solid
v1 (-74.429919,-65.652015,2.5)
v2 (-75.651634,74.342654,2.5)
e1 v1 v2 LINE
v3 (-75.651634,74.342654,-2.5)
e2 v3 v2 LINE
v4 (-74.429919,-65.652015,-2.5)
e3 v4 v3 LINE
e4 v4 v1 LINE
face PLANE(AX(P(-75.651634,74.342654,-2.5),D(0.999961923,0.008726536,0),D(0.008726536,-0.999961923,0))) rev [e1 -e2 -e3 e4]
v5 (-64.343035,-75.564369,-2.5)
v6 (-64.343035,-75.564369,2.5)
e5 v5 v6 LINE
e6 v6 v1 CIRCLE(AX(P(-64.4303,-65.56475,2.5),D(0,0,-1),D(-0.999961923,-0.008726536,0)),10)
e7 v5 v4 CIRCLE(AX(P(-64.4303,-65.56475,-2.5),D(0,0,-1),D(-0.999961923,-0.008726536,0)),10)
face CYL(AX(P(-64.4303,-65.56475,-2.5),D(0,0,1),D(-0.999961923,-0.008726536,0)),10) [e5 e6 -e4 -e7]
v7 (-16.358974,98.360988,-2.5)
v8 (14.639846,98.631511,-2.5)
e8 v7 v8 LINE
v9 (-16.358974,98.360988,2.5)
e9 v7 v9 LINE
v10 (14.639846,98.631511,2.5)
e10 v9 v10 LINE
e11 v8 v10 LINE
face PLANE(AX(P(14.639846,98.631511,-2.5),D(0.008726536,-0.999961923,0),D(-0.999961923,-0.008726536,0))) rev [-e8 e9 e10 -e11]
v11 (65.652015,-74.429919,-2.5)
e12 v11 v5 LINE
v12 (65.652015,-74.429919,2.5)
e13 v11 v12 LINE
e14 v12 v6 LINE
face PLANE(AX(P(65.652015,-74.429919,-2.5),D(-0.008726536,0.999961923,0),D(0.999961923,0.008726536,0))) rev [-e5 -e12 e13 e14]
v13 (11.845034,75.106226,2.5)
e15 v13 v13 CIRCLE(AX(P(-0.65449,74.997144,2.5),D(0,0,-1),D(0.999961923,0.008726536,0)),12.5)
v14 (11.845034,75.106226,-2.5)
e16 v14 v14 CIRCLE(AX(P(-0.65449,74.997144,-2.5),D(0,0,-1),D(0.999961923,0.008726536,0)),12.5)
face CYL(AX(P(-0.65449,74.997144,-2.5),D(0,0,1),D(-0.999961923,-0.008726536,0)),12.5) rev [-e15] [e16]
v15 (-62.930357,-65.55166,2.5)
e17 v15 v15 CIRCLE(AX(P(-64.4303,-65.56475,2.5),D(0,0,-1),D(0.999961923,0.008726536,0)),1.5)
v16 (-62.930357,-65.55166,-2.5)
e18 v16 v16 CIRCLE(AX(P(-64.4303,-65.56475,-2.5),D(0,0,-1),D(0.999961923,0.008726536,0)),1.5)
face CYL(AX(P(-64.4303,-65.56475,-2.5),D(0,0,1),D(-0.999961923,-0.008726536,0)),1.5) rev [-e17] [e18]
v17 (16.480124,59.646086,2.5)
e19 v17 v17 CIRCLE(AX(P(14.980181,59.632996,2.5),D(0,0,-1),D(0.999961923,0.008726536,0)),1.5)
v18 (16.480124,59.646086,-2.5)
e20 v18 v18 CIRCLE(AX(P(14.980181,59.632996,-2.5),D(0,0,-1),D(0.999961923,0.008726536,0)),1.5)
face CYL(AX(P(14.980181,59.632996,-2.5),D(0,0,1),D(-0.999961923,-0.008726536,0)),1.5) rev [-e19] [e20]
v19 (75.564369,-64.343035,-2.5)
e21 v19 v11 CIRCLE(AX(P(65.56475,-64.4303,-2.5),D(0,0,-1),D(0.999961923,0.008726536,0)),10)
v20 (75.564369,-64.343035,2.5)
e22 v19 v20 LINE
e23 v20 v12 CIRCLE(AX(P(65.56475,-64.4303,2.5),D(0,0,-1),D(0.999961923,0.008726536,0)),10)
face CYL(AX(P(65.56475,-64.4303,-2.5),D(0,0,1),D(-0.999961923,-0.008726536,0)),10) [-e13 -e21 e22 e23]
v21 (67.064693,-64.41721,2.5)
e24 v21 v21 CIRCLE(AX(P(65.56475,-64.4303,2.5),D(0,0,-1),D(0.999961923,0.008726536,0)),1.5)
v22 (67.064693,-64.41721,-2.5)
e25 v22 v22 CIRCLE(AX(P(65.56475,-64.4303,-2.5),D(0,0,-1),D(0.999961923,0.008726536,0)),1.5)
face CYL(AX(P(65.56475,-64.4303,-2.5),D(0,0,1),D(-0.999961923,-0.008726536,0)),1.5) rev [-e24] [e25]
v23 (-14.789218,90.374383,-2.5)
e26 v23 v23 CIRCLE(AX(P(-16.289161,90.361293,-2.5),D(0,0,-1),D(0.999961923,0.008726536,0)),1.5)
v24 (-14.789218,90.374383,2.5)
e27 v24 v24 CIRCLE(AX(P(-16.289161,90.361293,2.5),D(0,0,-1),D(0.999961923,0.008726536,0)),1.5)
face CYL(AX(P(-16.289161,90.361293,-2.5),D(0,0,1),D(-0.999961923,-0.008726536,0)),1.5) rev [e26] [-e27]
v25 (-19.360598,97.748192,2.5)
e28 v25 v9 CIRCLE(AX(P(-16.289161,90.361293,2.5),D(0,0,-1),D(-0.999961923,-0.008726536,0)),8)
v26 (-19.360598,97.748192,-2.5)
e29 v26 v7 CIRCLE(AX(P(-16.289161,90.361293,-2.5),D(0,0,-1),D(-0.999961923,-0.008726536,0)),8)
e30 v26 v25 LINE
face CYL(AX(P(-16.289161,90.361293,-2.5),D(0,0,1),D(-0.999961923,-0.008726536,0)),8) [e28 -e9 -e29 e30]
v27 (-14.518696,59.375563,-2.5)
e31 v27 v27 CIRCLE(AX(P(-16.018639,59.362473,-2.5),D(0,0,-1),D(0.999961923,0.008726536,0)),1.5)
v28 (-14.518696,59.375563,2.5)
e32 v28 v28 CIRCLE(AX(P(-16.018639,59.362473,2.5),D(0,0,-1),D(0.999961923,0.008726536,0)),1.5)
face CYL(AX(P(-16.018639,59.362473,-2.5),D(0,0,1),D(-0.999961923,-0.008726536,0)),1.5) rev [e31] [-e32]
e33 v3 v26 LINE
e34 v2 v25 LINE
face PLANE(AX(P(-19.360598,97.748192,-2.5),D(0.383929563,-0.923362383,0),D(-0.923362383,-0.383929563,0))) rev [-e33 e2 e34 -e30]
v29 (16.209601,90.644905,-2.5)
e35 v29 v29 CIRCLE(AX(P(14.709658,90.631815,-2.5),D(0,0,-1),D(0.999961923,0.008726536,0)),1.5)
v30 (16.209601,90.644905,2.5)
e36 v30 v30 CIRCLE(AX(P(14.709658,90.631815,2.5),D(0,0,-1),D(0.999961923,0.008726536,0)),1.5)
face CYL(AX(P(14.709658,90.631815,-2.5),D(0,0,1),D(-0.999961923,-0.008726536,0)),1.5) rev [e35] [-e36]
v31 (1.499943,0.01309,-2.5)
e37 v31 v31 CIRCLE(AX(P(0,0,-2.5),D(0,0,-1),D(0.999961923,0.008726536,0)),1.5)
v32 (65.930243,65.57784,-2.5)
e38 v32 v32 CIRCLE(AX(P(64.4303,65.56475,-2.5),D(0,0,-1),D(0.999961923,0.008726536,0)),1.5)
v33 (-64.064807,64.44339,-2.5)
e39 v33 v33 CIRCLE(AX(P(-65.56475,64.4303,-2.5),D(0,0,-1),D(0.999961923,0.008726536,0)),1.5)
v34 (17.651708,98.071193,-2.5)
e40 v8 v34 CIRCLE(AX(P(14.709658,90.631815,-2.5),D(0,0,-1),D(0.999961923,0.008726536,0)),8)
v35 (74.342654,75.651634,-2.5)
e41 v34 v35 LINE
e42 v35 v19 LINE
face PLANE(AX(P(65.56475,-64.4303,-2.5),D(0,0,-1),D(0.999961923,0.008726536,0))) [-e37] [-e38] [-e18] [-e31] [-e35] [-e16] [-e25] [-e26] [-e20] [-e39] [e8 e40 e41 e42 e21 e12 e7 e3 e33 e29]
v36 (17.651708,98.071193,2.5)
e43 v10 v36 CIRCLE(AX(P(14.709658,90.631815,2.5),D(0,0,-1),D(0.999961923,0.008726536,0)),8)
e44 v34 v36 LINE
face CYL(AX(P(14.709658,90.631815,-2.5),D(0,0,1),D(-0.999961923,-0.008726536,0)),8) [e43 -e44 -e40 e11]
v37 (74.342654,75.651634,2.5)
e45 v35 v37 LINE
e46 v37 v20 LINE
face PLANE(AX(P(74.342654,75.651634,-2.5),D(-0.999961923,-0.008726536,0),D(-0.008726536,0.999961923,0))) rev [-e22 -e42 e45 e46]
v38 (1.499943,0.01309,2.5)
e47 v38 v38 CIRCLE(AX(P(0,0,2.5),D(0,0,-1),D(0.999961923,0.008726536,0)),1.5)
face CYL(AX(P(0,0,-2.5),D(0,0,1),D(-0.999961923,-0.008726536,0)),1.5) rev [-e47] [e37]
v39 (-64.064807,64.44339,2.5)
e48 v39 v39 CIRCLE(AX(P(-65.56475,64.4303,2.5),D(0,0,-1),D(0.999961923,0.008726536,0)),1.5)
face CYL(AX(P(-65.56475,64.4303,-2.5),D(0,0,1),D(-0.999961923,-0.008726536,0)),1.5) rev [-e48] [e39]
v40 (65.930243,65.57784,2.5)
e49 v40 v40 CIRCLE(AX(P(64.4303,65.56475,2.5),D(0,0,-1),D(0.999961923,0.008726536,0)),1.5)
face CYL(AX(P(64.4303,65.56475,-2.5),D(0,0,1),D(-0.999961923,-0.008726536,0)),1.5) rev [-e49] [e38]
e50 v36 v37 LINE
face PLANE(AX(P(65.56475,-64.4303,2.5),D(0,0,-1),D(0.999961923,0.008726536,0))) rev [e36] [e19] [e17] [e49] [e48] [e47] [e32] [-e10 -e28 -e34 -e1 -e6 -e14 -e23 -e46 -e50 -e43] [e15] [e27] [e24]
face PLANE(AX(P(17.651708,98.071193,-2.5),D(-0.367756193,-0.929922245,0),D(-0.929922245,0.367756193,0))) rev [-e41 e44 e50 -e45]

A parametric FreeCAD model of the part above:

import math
import FreeCAD as App
import Part
import Sketcher
Q = App.Units.Quantity

doc = App.newDocument("Part")
body = doc.addObject("PartDesign::Body", "Body")

# Sketch on XZ plane
sketch1 = body.newObject("Sketcher::SketchObject", "Sketch")
sketch1.AttachmentSupport = (doc.getObject("XZ_Plane"), [""])
sketch1.MapMode = "FlatFace"
sketch1.addGeometry([
    Part.LineSegment(App.Vector(-75, 75, 0), App.Vector(65, 75, 0)),  # 0
    Part.ArcOfCircle(Part.Circle(App.Vector(65, 65, 0), App.Vector(0, 0, 1), 10), math.radians(0), math.radians(90)),  # 1
    Part.LineSegment(App.Vector(75, 65, 0), App.Vector(75, -65, 0)),  # 2
    Part.ArcOfCircle(Part.Circle(App.Vector(65, -65, 0), App.Vector(0, 0, 1), 10), math.radians(-90), math.radians(0)),  # 3
    Part.LineSegment(App.Vector(65, -75, 0), App.Vector(-75, -75, 0)),  # 4
    Part.LineSegment(App.Vector(-75, -75, 0), App.Vector(-97.9, -18.5, 0)),  # 5
    Part.ArcOfCircle(Part.Circle(App.Vector(-90.5, -15.5, 0), App.Vector(0, 0, 1), 8), math.radians(-180), math.radians(-158)),  # 6
    Part.LineSegment(App.Vector(-98.5, -15.5, 0), App.Vector(-98.5, 15.5, 0)),  # 7
    Part.ArcOfCircle(Part.Circle(App.Vector(-90.5, 15.5, 0), App.Vector(0, 0, 1), 8), math.radians(158), math.radians(180)),  # 8
    Part.LineSegment(App.Vector(-97.9, 18.5, 0), App.Vector(-75, 75, 0)),  # 9
    Part.Circle(App.Vector(-65, 65, 0), App.Vector(0, 0, 1), 1.5),  # 10
    Part.Circle(App.Vector(-90.5, 15.5, 0), App.Vector(0, 0, 1), 1.5),  # 11
    Part.Circle(App.Vector(-59.5, 15.5, 0), App.Vector(0, 0, 1), 1.5),  # 12
    Part.Circle(App.Vector(65, 65, 0), App.Vector(0, 0, 1), 1.5),  # 13
    Part.Circle(App.Vector(-75, 0, 0), App.Vector(0, 0, 1), 12.5),  # 14
    Part.Circle(App.Vector(-90.5, -15.5, 0), App.Vector(0, 0, 1), 1.5),  # 15
    Part.Circle(App.Vector(-59.5, -15.5, 0), App.Vector(0, 0, 1), 1.5),  # 16
    Part.Circle(App.Vector(-65, -65, 0), App.Vector(0, 0, 1), 1.5),  # 17
    Part.Circle(App.Vector(0, 0, 0), App.Vector(0, 0, 1), 1.5),  # 18
    Part.Circle(App.Vector(65, -65, 0), App.Vector(0, 0, 1), 1.5),  # 19
], False)
sketch1.addConstraint([
    Sketcher.Constraint("Tangent", 0, 2, 1, 2),
    Sketcher.Constraint("Tangent", 1, 1, 2, 1),
    Sketcher.Constraint("Tangent", 2, 2, 3, 2),
    Sketcher.Constraint("Tangent", 3, 1, 4, 1),
    Sketcher.Constraint("Coincident", 4, 2, 5, 1),
    Sketcher.Constraint("Tangent", 5, 2, 6, 2),
    Sketcher.Constraint("Tangent", 6, 1, 7, 1),
    Sketcher.Constraint("Tangent", 7, 2, 8, 2),
    Sketcher.Constraint("Tangent", 8, 1, 9, 1),
    Sketcher.Constraint("Coincident", 9, 2, 0, 1),
    Sketcher.Constraint("Horizontal", 0),
    Sketcher.Constraint("Vertical", 2),
    Sketcher.Constraint("Horizontal", 4),
    Sketcher.Constraint("Vertical", 7),
    Sketcher.Constraint("Coincident", 18, 3, -1, 1),
    Sketcher.Constraint("Coincident", 11, 3, 8, 3),
    Sketcher.Constraint("Coincident", 13, 3, 1, 3),
    Sketcher.Constraint("Coincident", 15, 3, 6, 3),
    Sketcher.Constraint("Coincident", 19, 3, 3, 3),
    Sketcher.Constraint("Equal", 1, 3),
    Sketcher.Constraint("Equal", 6, 8),
    Sketcher.Constraint("Equal", 10, 11),
    Sketcher.Constraint("Equal", 11, 12),
    Sketcher.Constraint("Equal", 12, 13),
    Sketcher.Constraint("Equal", 13, 15),
    Sketcher.Constraint("Equal", 15, 16),
    Sketcher.Constraint("Equal", 16, 17),
    Sketcher.Constraint("Equal", 17, 18),
    Sketcher.Constraint("Equal", 18, 19),
    Sketcher.Constraint("Symmetric", 3, 3, 10, 3, -1, 1),
    Sketcher.Constraint("Symmetric", 1, 3, 17, 3, -1, 1),
    Sketcher.Constraint("Symmetric", 12, 3, 16, 3, -1),
    Sketcher.Constraint("Symmetric", 5, 2, 8, 1, -1),
    Sketcher.Constraint("PointOnObject", 14, 3, -1),
    Sketcher.Constraint("Horizontal", 1, 3, 10, 3),
    Sketcher.Constraint("Horizontal", 11, 3, 12, 3),
    Sketcher.Constraint("Vertical", 14, 3, 4, 2),
    Sketcher.Constraint("Diameter", 10, Q("3 mm")),
    Sketcher.Constraint("Diameter", 14, Q("25 mm")),
    Sketcher.Constraint("Radius", 1, Q("10 mm")),
    Sketcher.Constraint("Radius", 6, Q("8 mm")),
    Sketcher.Constraint("DistanceX", 0, 1, 0, 2, Q("140 mm")),
    Sketcher.Constraint("DistanceY", 2, 2, 2, 1, Q("130 mm")),
    Sketcher.Constraint("DistanceY", 7, 1, 7, 2, Q("31 mm")),
    Sketcher.Constraint("DistanceX", -1, 1, 1, 3, Q("65 mm")),
    Sketcher.Constraint("DistanceX", 8, 3, 12, 3, Q("31 mm")),
    Sketcher.Constraint("DistanceX", 6, 3, -1, 1, Q("90.5 mm")),
])
pad1 = body.newObject("PartDesign::Pad", "Pad")
pad1.Profile = sketch1
pad1.Length = 5
pad1.Reversed = True
body2 = doc.addObject("PartDesign::Body", "Body001")
doc.recompute()

body.Placement = App.Placement(App.Vector(-11.647463, -9.249553, 2.5), App.Rotation(App.Vector(-0.580709143, 0.575663483, -0.575663483), 119.711746))
boolean = body2.newObject("PartDesign::Boolean", "Boolean")
boolean.Type = "Fuse"
boolean.addObjects([body])
body3 = doc.addObject("PartDesign::Body", "Body002")
doc.recompute()

body2.Placement = App.Placement(App.Vector(11.647463, 9.249553, 0), App.Rotation(App.Vector(0, 0, 1), 0))
boolean2 = body3.newObject("PartDesign::Boolean", "Boolean001")
boolean2.Type = "Fuse"
boolean2.addObjects([body2])

doc.recompute()
